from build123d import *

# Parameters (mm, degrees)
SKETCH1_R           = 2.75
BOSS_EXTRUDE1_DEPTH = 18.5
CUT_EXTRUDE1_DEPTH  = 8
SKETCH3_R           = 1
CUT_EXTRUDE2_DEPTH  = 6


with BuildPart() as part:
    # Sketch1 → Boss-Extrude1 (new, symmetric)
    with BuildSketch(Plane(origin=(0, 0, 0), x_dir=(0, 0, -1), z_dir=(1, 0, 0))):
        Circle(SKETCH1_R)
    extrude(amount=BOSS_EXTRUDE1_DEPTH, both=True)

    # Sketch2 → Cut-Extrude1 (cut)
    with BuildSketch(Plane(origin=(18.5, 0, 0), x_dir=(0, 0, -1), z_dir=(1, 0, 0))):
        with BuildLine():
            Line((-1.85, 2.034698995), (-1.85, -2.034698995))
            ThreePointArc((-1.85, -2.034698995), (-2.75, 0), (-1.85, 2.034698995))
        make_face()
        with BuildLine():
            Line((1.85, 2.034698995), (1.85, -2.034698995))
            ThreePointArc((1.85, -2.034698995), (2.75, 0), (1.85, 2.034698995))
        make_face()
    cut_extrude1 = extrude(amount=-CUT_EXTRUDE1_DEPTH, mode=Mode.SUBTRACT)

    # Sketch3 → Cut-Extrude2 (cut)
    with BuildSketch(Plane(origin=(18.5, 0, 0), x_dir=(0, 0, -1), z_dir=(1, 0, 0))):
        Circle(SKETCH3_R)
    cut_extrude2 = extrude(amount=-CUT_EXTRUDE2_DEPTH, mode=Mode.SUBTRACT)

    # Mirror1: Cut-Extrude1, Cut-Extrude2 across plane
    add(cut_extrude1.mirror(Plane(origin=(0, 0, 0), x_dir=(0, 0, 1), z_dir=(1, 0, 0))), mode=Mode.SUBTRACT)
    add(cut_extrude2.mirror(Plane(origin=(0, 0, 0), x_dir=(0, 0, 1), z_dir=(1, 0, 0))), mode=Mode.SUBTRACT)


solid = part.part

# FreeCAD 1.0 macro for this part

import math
import FreeCAD as App
import Part
import Sketcher
from FreeCAD import Vector

doc = App.newDocument("Part")
body = doc.addObject("PartDesign::Body", "Body")

# Sketch on YZ plane
sketch1 = doc.addObject("Sketcher::SketchObject", "Sketch")
body.addObject(sketch1)
sketch1.AttachmentSupport = (doc.YZ_Plane, [""])
sketch1.MapMode = "FlatFace"
sketch1.addGeometry(Part.Circle(Vector(0, 0, 0), Vector(0, 0, 1), 2.8), False)
sketch1.addConstraint([
    Sketcher.Constraint("Coincident", 0, 3, -1, 1),
    Sketcher.Constraint("Diameter", 0, 5.5),
])
pad1 = doc.addObject("PartDesign::Pad", "Pad")
body.addObject(pad1)
pad1.Profile = sketch1
pad1.Length = 37
pad1.Midplane = True

# Sketch on YZ plane
sketch2 = doc.addObject("Sketcher::SketchObject", "Sketch001")
body.addObject(sketch2)
sketch2.AttachmentSupport = (doc.YZ_Plane, [""])
sketch2.MapMode = "FlatFace"
sketch2.AttachmentOffset = App.Placement(Vector(0, 0, 18.5), App.Rotation())
sketch2.addGeometry([
    Part.LineSegment(Vector(-2, 1.9, 0), Vector(2, 1.9, 0)),
    Part.ArcOfCircle(Part.Circle(Vector(0, 0, 0), Vector(0, 0, 1), 2.8), math.radians(42), math.radians(138)),
    Part.LineSegment(Vector(2, -1.9, 0), Vector(-2, -1.9, 0)),
    Part.ArcOfCircle(Part.Circle(Vector(0, 0, 0), Vector(0, 0, 1), 2.8), math.radians(-138), math.radians(-42)),
], False)
sketch2.addConstraint([
    Sketcher.Constraint("Coincident", 0, 1, 1, 2),
    Sketcher.Constraint("Coincident", 1, 1, 0, 2),
    Sketcher.Constraint("Coincident", 2, 1, 3, 2),
    Sketcher.Constraint("Coincident", 3, 1, 2, 2),
    Sketcher.Constraint("Horizontal", 0),
    Sketcher.Constraint("Horizontal", 2),
    Sketcher.Constraint("Coincident", 1, 3, -1, 1),
    Sketcher.Constraint("Coincident", 3, 3, -1, 1),
    Sketcher.Constraint("Equal", 1, 3),
    Sketcher.Constraint("Vertical", 1, 1, 2, 1),
    Sketcher.Constraint("Radius", 1, 2.75),
    Sketcher.Constraint("DistanceY", 2, 1, 1, 1, 3.7),
])
pocket1 = doc.addObject("PartDesign::Pocket", "Pocket")
body.addObject(pocket1)
pocket1.Profile = sketch2
pocket1.Length = 8

# Sketch on YZ plane
sketch3 = doc.addObject("Sketcher::SketchObject", "Sketch002")
body.addObject(sketch3)
sketch3.AttachmentSupport = (doc.YZ_Plane, [""])
sketch3.MapMode = "FlatFace"
sketch3.AttachmentOffset = App.Placement(Vector(0, 0, 18.5), App.Rotation())
sketch3.addGeometry(Part.Circle(Vector(0, 0, 0), Vector(0, 0, 1), 1), False)
sketch3.addConstraint([
    Sketcher.Constraint("Coincident", 0, 3, -1, 1),
    Sketcher.Constraint("Diameter", 0, 2.0),
])
pocket2 = doc.addObject("PartDesign::Pocket", "Pocket001")
body.addObject(pocket2)
pocket2.Profile = sketch3
pocket2.Length = 6
doc.recompute()

mirrored = doc.addObject("PartDesign::Mirrored", "Mirrored")
body.addObject(mirrored)
mirrored.Originals = [pocket1, pocket2]
mirrored.MirrorPlane = (doc.YZ_Plane, [""])
body.Tip = mirrored

doc.recompute()
